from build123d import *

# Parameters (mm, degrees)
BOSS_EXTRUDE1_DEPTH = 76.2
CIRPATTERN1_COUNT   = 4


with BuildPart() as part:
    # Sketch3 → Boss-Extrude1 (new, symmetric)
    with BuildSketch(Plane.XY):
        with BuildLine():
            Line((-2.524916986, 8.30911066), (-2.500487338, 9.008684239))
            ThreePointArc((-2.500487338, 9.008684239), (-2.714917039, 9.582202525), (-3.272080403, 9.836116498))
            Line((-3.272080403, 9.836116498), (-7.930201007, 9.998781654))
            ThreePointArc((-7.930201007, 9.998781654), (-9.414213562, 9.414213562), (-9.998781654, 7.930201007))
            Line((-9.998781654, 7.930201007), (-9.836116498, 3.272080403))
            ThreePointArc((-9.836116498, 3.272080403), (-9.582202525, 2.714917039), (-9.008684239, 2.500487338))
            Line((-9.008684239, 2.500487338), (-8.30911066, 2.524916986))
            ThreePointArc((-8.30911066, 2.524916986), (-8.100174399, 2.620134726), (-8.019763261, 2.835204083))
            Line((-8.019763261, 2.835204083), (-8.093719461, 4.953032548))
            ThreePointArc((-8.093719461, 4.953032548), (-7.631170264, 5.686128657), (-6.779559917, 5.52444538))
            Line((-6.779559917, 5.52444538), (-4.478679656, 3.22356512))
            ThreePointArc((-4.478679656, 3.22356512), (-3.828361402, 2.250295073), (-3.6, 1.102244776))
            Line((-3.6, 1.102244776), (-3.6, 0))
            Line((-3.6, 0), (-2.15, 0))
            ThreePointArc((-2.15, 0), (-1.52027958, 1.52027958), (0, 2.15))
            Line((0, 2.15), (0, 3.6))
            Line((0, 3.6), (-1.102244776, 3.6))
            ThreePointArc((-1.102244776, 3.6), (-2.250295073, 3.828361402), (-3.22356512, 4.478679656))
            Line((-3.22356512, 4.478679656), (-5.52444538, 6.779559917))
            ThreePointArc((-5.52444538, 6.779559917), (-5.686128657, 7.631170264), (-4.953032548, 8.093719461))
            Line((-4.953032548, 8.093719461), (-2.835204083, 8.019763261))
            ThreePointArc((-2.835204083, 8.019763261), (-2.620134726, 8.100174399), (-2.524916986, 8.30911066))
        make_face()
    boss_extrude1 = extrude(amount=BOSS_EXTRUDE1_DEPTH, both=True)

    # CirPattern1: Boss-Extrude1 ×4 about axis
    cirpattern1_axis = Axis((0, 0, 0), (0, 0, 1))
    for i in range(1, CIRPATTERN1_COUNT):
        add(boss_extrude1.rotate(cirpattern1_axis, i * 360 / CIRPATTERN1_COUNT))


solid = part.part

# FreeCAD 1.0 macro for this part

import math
import FreeCAD as App
import Part
import Sketcher

V = App.Vector
Q = App.Units.Quantity

doc = App.newDocument("Part")
body = doc.addObject("PartDesign::Body", "Body")

sketch1 = body.newObject("Sketcher::SketchObject", "Sketch")
sketch1.AttachmentSupport = (doc.getObject("XY_Plane"), [""])
sketch1.MapMode = "FlatFace"
sketch1.addGeometry([
    Part.LineSegment(V(-2.52, 8.31, 0), V(-2.5, 9.01, 0)),
    Part.ArcOfCircle(Part.Circle(V(-3.3, 9.04, 0), V(0, 0, 1), 0.8), math.radians(-2), math.radians(88)),
    Part.LineSegment(V(-3.27, 9.84, 0), V(-7.93, 10, 0)),
    Part.ArcOfCircle(Part.Circle(V(-8, 8, 0), V(0, 0, 1), 2), math.radians(88), math.radians(182)),
    Part.LineSegment(V(-10, 7.93, 0), V(-9.84, 3.27, 0)),
    Part.ArcOfCircle(Part.Circle(V(-9.04, 3.3, 0), V(0, 0, 1), 0.8), math.radians(-178), math.radians(-88)),
    Part.LineSegment(V(-9.01, 2.5, 0), V(-8.31, 2.52, 0)),
    Part.ArcOfCircle(Part.Circle(V(-8.32, 2.82, 0), V(0, 0, 1), 0.3), math.radians(-88), math.radians(2)),
    Part.LineSegment(V(-8.02, 2.84, 0), V(-8.09, 4.95, 0)),
    Part.ArcOfCircle(Part.Circle(V(-7.32, 4.98, 0), V(0, 0, 1), 0.77), math.radians(45), math.radians(182)),
    Part.LineSegment(V(-6.78, 5.52, 0), V(-4.48, 3.22, 0)),
    Part.ArcOfCircle(Part.Circle(V(-6.6, 1.1, 0), V(0, 0, 1), 3), math.radians(0), math.radians(45)),
    Part.LineSegment(V(-3.6, 1.1, 0), V(-3.6, 0, 0)),
    Part.LineSegment(V(-3.6, 0, 0), V(-2.15, 0, 0)),
    Part.ArcOfCircle(Part.Circle(V(0, 0, 0), V(0, 0, 1), 2.15), math.radians(90), math.radians(180)),
    Part.LineSegment(V(0, 2.15, 0), V(0, 3.6, 0)),
    Part.LineSegment(V(0, 3.6, 0), V(-1.1, 3.6, 0)),
    Part.ArcOfCircle(Part.Circle(V(-1.1, 6.6, 0), V(0, 0, 1), 3), math.radians(-135), math.radians(-90)),
    Part.LineSegment(V(-3.22, 4.48, 0), V(-5.52, 6.78, 0)),
    Part.ArcOfCircle(Part.Circle(V(-4.98, 7.32, 0), V(0, 0, 1), 0.77), math.radians(88), math.radians(225)),
    Part.LineSegment(V(-4.95, 8.09, 0), V(-2.84, 8.02, 0)),
    Part.ArcOfCircle(Part.Circle(V(-2.82, 8.32, 0), V(0, 0, 1), 0.3), math.radians(-92), math.radians(-2)),
], False)
sketch1.addConstraint([
    Sketcher.Constraint("Tangent", 0, 2, 1, 1),
    Sketcher.Constraint("Tangent", 1, 2, 2, 1),
    Sketcher.Constraint("Tangent", 2, 2, 3, 1),
    Sketcher.Constraint("Tangent", 3, 2, 4, 1),
    Sketcher.Constraint("Tangent", 4, 2, 5, 1),
    Sketcher.Constraint("Tangent", 5, 2, 6, 1),
    Sketcher.Constraint("Tangent", 6, 2, 7, 1),
    Sketcher.Constraint("Tangent", 7, 2, 8, 1),
    Sketcher.Constraint("Tangent", 8, 2, 9, 2),
    Sketcher.Constraint("Tangent", 9, 1, 10, 1),
    Sketcher.Constraint("Tangent", 10, 2, 11, 2),
    Sketcher.Constraint("Tangent", 11, 1, 12, 1),
    Sketcher.Constraint("Coincident", 12, 2, 13, 1),
    Sketcher.Constraint("Coincident", 13, 2, 14, 2),
    Sketcher.Constraint("Coincident", 14, 1, 15, 1),
    Sketcher.Constraint("Coincident", 15, 2, 16, 1),
    Sketcher.Constraint("Tangent", 16, 2, 17, 2),
    Sketcher.Constraint("Tangent", 17, 1, 18, 1),
    Sketcher.Constraint("Tangent", 18, 2, 19, 2),
    Sketcher.Constraint("Tangent", 19, 1, 20, 1),
    Sketcher.Constraint("Tangent", 20, 2, 21, 1),
    Sketcher.Constraint("Tangent", 21, 2, 0, 1),
    Sketcher.Constraint("Vertical", 12),
    Sketcher.Constraint("Horizontal", 13),
    Sketcher.Constraint("Vertical", 15),
    Sketcher.Constraint("Horizontal", 16),
    Sketcher.Constraint("Coincident", 14, 3, -1, 1),
    Sketcher.Constraint("Equal", 1, 5),
    Sketcher.Constraint("Equal", 11, 17),
    Sketcher.Constraint("Equal", 9, 19),
    Sketcher.Constraint("Equal", 7, 21),
    Sketcher.Constraint("PointOnObject", 12, 2, -1),
    Sketcher.Constraint("PointOnObject", 14, 1, -2),
    Sketcher.Constraint("Perpendicular", 0, 2),
    Sketcher.Constraint("Perpendicular", 4, 6),
    Sketcher.Constraint("Perpendicular", 6, 8),
    Sketcher.Constraint("Parallel", 10, 18),
    Sketcher.Constraint("Parallel", 2, 20),
    Sketcher.Constraint("Equal", 16, 12),
    Sketcher.Constraint("Equal", 13, 15),
    Sketcher.Constraint("Equal", 2, 4),
    Sketcher.Constraint("Equal", 0, 6),
    Sketcher.Constraint("Equal", 10, 18),
    Sketcher.Constraint("Equal", 8, 20),
    Sketcher.Constraint("Radius", 3, 2.0),
    Sketcher.Constraint("Radius", 11, 3.0),
    Sketcher.Constraint("Radius", 1, 0.8),
    Sketcher.Constraint("Radius", 7, 0.3),
    Sketcher.Constraint("Angle", 0, Q("88 deg")),
    Sketcher.Constraint("Angle", 4, Q("-88 deg")),
    Sketcher.Constraint("Radius", 14, 2.15),
    Sketcher.Constraint("DistanceX", 3, 3, -1, 1, 8.0),
    Sketcher.Constraint("Distance", 0, 0.7),
    Sketcher.Constraint("DistanceX", 13, 1, 13, 2, 1.45),
    Sketcher.Constraint("DistanceX", 1, 3, -1, 1, 3.3),
    Sketcher.Constraint("Radius", 9, 0.770092),
    Sketcher.Constraint("DistanceY", 7, 3, 8, 2, 2.128298),
])
pad1 = body.newObject("PartDesign::Pad", "Pad")
pad1.Profile = sketch1
pad1.Length = 152.4
pad1.Midplane = True
doc.recompute()

polarpattern = body.newObject("PartDesign::PolarPattern", "PolarPattern")
polarpattern.Originals = [pad1]
polarpattern.Axis = (doc.getObject("Z_Axis"), [""])
polarpattern.Angle = 360
polarpattern.Occurrences = 4
body.Tip = polarpattern

doc.recompute()
